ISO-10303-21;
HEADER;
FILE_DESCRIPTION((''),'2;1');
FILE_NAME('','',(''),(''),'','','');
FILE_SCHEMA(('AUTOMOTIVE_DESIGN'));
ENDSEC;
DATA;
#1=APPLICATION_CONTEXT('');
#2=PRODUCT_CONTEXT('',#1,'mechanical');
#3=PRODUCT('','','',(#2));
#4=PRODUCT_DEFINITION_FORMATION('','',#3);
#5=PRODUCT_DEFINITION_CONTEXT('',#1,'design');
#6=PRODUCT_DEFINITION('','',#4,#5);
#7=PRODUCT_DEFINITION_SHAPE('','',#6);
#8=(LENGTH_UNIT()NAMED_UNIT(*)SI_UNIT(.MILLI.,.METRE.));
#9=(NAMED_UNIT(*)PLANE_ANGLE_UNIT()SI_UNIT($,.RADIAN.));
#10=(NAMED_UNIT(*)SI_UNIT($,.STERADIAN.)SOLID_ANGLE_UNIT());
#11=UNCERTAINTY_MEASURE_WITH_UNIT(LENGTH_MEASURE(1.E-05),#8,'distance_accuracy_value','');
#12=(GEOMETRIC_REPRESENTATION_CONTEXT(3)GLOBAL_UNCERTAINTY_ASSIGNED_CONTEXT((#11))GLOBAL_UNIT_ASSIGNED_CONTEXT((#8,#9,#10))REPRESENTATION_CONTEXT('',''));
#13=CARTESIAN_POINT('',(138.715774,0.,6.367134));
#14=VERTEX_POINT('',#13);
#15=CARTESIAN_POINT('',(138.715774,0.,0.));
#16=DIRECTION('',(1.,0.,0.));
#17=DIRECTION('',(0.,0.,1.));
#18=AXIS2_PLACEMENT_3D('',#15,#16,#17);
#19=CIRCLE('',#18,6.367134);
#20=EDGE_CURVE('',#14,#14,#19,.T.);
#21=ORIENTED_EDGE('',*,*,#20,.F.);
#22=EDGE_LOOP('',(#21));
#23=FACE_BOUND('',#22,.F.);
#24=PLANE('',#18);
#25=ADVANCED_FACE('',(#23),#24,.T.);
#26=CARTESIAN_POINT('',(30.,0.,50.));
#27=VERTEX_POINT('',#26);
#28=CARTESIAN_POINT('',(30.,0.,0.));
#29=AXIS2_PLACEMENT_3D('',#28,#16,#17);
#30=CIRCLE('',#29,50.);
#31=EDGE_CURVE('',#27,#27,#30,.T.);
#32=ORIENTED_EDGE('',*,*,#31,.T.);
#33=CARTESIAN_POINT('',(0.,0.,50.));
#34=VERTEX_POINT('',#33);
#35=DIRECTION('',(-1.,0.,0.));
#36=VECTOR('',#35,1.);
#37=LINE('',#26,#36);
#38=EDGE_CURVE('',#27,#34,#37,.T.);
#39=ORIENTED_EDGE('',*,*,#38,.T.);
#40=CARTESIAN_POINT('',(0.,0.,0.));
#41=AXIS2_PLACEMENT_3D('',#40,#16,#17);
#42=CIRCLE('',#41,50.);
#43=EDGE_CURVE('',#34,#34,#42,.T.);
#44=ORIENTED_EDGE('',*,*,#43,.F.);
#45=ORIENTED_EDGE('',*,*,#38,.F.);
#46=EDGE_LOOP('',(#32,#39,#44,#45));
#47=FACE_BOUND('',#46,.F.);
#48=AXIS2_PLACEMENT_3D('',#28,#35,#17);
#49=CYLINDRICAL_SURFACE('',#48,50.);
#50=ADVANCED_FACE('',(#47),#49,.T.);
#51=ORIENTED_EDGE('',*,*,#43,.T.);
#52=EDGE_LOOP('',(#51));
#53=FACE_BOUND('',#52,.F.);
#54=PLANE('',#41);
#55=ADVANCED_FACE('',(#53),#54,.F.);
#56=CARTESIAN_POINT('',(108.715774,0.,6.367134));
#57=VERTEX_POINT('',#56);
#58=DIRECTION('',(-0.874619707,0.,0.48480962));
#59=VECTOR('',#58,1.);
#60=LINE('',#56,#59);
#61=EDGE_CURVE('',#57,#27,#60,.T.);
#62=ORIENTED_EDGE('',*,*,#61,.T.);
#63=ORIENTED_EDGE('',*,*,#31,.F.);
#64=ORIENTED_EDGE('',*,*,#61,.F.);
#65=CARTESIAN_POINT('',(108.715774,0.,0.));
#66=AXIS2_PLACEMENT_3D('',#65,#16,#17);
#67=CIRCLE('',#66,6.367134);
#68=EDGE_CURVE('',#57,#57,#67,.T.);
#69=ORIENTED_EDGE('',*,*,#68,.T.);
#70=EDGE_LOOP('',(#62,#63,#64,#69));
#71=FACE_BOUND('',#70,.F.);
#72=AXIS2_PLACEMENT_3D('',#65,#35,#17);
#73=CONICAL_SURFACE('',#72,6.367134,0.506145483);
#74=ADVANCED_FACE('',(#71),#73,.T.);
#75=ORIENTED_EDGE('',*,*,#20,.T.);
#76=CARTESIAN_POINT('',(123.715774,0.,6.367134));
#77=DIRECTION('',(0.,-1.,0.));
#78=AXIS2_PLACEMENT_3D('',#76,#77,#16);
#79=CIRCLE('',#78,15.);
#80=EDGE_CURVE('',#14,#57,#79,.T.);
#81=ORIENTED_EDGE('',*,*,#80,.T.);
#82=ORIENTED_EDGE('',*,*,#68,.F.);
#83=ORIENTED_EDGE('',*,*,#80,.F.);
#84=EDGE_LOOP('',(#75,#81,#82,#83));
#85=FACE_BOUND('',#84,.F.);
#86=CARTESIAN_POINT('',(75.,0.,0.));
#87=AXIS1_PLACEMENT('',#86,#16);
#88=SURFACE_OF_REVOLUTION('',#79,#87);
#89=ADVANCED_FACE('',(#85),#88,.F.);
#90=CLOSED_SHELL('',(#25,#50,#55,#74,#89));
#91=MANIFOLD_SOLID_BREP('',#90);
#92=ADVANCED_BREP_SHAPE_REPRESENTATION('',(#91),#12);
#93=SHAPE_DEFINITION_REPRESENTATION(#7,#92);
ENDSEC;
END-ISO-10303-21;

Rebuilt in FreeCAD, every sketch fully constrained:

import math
import FreeCAD as App
import Part
import Sketcher
Q = App.Units.Quantity

doc = App.newDocument("Part")
body = doc.addObject("PartDesign::Body", "Body")

# Sketch on XZ plane
sketch1 = doc.addObject("Sketcher::SketchObject", "Sketch")
body.addObject(sketch1)
sketch1.AttachmentSupport = (doc.XZ_Plane, [""])
sketch1.MapMode = "FlatFace"
sketch1.addGeometry([
    Part.LineSegment(App.Vector(0, 50, 0), App.Vector(0, 0, 0)),  # 0
    Part.LineSegment(App.Vector(0, 0, 0), App.Vector(139, 0, 0)),  # 1
    Part.LineSegment(App.Vector(139, 0, 0), App.Vector(139, 6, 0)),  # 2
    Part.ArcOfCircle(Part.Circle(App.Vector(124, 6, 0), App.Vector(0, 0, 1), 15), math.radians(0), math.radians(180)),  # 3
    Part.LineSegment(App.Vector(109, 6, 0), App.Vector(30, 50, 0)),  # 4
    Part.LineSegment(App.Vector(30, 50, 0), App.Vector(0, 50, 0)),  # 5
], False)
sketch1.addConstraint([
    Sketcher.Constraint("Coincident", 0, 2, 1, 1),
    Sketcher.Constraint("Coincident", 1, 2, 2, 1),
    Sketcher.Constraint("Tangent", 2, 2, 3, 1),
    Sketcher.Constraint("Coincident", 3, 2, 4, 1),
    Sketcher.Constraint("Coincident", 4, 2, 5, 1),
    Sketcher.Constraint("Coincident", 5, 2, 0, 1),
    Sketcher.Constraint("Vertical", 0),
    Sketcher.Constraint("Horizontal", 1),
    Sketcher.Constraint("Vertical", 2),
    Sketcher.Constraint("Horizontal", 5),
    Sketcher.Constraint("Coincident", 0, 2, -1, 1),
    Sketcher.Constraint("Horizontal", 2, 2, 3, 2),
    Sketcher.Constraint("Radius", 3, Q("15 mm")),
    Sketcher.Constraint("DistanceX", 5, 2, 5, 1, Q("30 mm")),
    Sketcher.Constraint("DistanceY", 0, 2, 0, 1, Q("50 mm")),
    Sketcher.Constraint("Angle", 4, Q("151 deg")),
    Sketcher.Constraint("Distance", 4, Q("90 mm")),
])
revolution = doc.addObject("PartDesign::Revolution", "Revolution")
body.addObject(revolution)
revolution.Profile = sketch1
revolution.ReferenceAxis = (sketch1, ["H_Axis"])
revolution.Angle = 360

doc.recompute()
